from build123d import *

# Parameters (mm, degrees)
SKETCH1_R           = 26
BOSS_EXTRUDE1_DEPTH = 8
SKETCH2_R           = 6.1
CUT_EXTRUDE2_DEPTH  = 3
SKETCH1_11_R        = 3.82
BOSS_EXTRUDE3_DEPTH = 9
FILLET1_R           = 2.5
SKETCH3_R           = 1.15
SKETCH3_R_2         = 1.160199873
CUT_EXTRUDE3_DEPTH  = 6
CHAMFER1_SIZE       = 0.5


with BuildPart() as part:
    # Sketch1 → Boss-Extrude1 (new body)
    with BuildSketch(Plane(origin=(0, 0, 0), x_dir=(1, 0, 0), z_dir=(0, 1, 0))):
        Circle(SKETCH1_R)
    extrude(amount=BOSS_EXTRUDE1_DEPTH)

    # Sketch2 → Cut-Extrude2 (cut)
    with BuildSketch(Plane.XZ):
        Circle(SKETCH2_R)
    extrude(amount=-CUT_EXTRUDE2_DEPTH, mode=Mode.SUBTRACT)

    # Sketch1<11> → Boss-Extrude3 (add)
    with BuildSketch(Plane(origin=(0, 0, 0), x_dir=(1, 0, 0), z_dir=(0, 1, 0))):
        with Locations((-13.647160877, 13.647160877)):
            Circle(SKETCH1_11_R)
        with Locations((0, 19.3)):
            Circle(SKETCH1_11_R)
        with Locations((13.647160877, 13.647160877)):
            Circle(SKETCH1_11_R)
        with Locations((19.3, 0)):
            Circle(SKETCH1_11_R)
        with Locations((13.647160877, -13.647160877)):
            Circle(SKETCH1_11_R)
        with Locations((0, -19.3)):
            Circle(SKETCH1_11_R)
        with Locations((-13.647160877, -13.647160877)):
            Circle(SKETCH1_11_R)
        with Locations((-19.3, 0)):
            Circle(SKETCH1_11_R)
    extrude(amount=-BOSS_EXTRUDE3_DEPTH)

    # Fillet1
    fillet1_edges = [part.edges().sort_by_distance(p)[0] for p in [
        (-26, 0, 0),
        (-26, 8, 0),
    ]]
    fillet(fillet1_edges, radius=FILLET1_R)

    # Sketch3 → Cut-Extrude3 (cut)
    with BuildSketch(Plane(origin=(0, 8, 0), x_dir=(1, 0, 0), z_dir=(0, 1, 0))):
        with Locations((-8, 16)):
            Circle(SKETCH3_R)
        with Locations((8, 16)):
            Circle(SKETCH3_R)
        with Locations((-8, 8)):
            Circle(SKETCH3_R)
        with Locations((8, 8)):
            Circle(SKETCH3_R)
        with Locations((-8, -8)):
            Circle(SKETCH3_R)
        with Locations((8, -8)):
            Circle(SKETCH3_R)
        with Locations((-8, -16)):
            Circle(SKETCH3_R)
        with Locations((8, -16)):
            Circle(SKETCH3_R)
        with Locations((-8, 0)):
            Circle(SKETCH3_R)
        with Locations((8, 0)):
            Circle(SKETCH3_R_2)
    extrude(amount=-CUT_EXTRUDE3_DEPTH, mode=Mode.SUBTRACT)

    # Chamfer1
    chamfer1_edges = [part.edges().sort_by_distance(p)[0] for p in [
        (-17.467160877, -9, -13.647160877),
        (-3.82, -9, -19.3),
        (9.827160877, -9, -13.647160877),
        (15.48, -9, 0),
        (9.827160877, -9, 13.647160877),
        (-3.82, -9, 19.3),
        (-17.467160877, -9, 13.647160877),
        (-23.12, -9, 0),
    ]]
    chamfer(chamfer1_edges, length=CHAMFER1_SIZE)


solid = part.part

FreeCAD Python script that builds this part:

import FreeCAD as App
import Part
import Sketcher
from FreeCAD import Vector


def edges_at(feature, points):
    """Names of the edges that pass closest to the given points."""
    edges = feature.Shape.Edges
    near = lambda p: min(range(len(edges)), key=lambda i: edges[i].distToShape(Part.Vertex(*p))[0])
    return sorted({f"Edge{near(p) + 1}" for p in points})

doc = App.newDocument("Part")
body = doc.addObject("PartDesign::Body", "Body")

sketch1 = doc.addObject("Sketcher::SketchObject", "Sketch")
body.addObject(sketch1)
sketch1.AttachmentSupport = (doc.XZ_Plane, [""])
sketch1.MapMode = "FlatFace"
sketch1.addGeometry(Part.Circle(Vector(0, 0, 0), Vector(0, 0, 1), 26), False)
sketch1.addConstraint([
    Sketcher.Constraint("Coincident", 0, 3, -1, 1),
    Sketcher.Constraint("Diameter", 0, 52.0),
])
pad1 = doc.addObject("PartDesign::Pad", "Pad")
body.addObject(pad1)
pad1.Profile = sketch1
pad1.Length = 8
pad1.Reversed = True

sketch2 = doc.addObject("Sketcher::SketchObject", "Sketch001")
body.addObject(sketch2)
sketch2.AttachmentSupport = (doc.XZ_Plane, [""])
sketch2.MapMode = "FlatFace"
sketch2.addGeometry(Part.Circle(Vector(0, 0, 0), Vector(0, 0, 1), 6), False)
sketch2.addConstraint([
    Sketcher.Constraint("Coincident", 0, 3, -1, 1),
    Sketcher.Constraint("Diameter", 0, 12.2),
])
pocket1 = doc.addObject("PartDesign::Pocket", "Pocket")
body.addObject(pocket1)
pocket1.Profile = sketch2
pocket1.Length = 3

sketch3 = doc.addObject("Sketcher::SketchObject", "Sketch002")
body.addObject(sketch3)
sketch3.AttachmentSupport = (doc.XZ_Plane, [""])
sketch3.MapMode = "FlatFace"
sketch3.addGeometry([
    Part.Circle(Vector(-13.6, -13.6, 0), Vector(0, 0, 1), 3.8),
    Part.Circle(Vector(0, -19.3, 0), Vector(0, 0, 1), 3.8),
    Part.Circle(Vector(13.6, -13.6, 0), Vector(0, 0, 1), 3.8),
    Part.Circle(Vector(19.3, 0, 0), Vector(0, 0, 1), 3.8),
    Part.Circle(Vector(13.6, 13.6, 0), Vector(0, 0, 1), 3.8),
    Part.Circle(Vector(0, 19.3, 0), Vector(0, 0, 1), 3.8),
    Part.Circle(Vector(-13.6, 13.6, 0), Vector(0, 0, 1), 3.8),
    Part.Circle(Vector(-19.3, 0, 0), Vector(0, 0, 1), 3.8),
], False)
sketch3.addConstraint([
    Sketcher.Constraint("Equal", 0, 1),
    Sketcher.Constraint("Equal", 1, 2),
    Sketcher.Constraint("Equal", 2, 3),
    Sketcher.Constraint("Equal", 3, 4),
    Sketcher.Constraint("Equal", 4, 5),
    Sketcher.Constraint("Equal", 5, 6),
    Sketcher.Constraint("Equal", 6, 7),
    Sketcher.Constraint("Symmetric", 0, 3, 4, 3, -1, 1),
    Sketcher.Constraint("Symmetric", 1, 3, 5, 3, -1, 1),
    Sketcher.Constraint("Symmetric", 2, 3, 6, 3, -1, 1),
    Sketcher.Constraint("Symmetric", 3, 3, 7, 3, -1, 1),
    Sketcher.Constraint("Symmetric", 0, 3, 2, 3, -2),
    Sketcher.Constraint("PointOnObject", 1, 3, -2),
    Sketcher.Constraint("PointOnObject", 3, 3, -1),
    Sketcher.Constraint("Diameter", 0, 7.64),
    Sketcher.Constraint("DistanceY", 1, 3, -1, 1, 19.3),
    Sketcher.Constraint("DistanceX", -1, 1, 3, 3, 19.3),
    Sketcher.Constraint("DistanceX", 0, 3, -1, 1, 13.647161),
    Sketcher.Constraint("DistanceY", 0, 3, -1, 1, 13.647161),
])
pad2 = doc.addObject("PartDesign::Pad", "Pad001")
body.addObject(pad2)
pad2.Profile = sketch3
pad2.Length = 9
doc.recompute()

fillet = doc.addObject("PartDesign::Fillet", "Fillet")
body.addObject(fillet)
fillet.Base = (pad2, edges_at(pad2, [(-26, 0, 0), (-26, 8, 0)]))
fillet.Radius = 2.5

sketch4 = doc.addObject("Sketcher::SketchObject", "Sketch003")
body.addObject(sketch4)
sketch4.AttachmentSupport = (doc.XZ_Plane, [""])
sketch4.MapMode = "FlatFace"
sketch4.AttachmentOffset = App.Placement(Vector(0, 0, -8), App.Rotation())
sketch4.addGeometry([
    Part.Circle(Vector(-8, -16, 0), Vector(0, 0, 1), 1.1),
    Part.Circle(Vector(8, -16, 0), Vector(0, 0, 1), 1.1),
    Part.Circle(Vector(-8, -8, 0), Vector(0, 0, 1), 1.1),
    Part.Circle(Vector(8, -8, 0), Vector(0, 0, 1), 1.1),
    Part.Circle(Vector(-8, 8, 0), Vector(0, 0, 1), 1.1),
    Part.Circle(Vector(8, 8, 0), Vector(0, 0, 1), 1.1),
    Part.Circle(Vector(-8, 16, 0), Vector(0, 0, 1), 1.1),
    Part.Circle(Vector(8, 16, 0), Vector(0, 0, 1), 1.1),
    Part.Circle(Vector(-8, 0, 0), Vector(0, 0, 1), 1.1),
    Part.Circle(Vector(8, 0, 0), Vector(0, 0, 1), 1.2),
], False)
sketch4.addConstraint([
    Sketcher.Constraint("Equal", 0, 1),
    Sketcher.Constraint("Equal", 1, 2),
    Sketcher.Constraint("Equal", 2, 3),
    Sketcher.Constraint("Equal", 3, 4),
    Sketcher.Constraint("Equal", 4, 5),
    Sketcher.Constraint("Equal", 5, 6),
    Sketcher.Constraint("Equal", 6, 7),
    Sketcher.Constraint("Equal", 7, 8),
    Sketcher.Constraint("Symmetric", 3, 3, 4, 3, -1, 1),
    Sketcher.Constraint("Symmetric", 2, 3, 5, 3, -1, 1),
    Sketcher.Constraint("Symmetric", 1, 3, 6, 3, -1, 1),
    Sketcher.Constraint("Symmetric", 0, 3, 7, 3, -1, 1),
    Sketcher.Constraint("Symmetric", 8, 3, 9, 3, -1, 1),
    Sketcher.Constraint("Symmetric", 0, 3, 1, 3, -2),
    Sketcher.Constraint("Symmetric", 2, 3, 3, 3, -2),
    Sketcher.Constraint("PointOnObject", 8, 3, -1),
    Sketcher.Constraint("Vertical", 0, 3, 2, 3),
    Sketcher.Constraint("Vertical", 6, 3, 8, 3),
    Sketcher.Constraint("Diameter", 0, 2.3),
    Sketcher.Constraint("DistanceX", 0, 3, -1, 1, 8.0),
    Sketcher.Constraint("DistanceY", 0, 3, -1, 1, 16.0),
    Sketcher.Constraint("DistanceY", 2, 3, -1, 1, 8.0),
    Sketcher.Constraint("Diameter", 9, 2.3204),
])
pocket2 = doc.addObject("PartDesign::Pocket", "Pocket001")
body.addObject(pocket2)
pocket2.Profile = sketch4
pocket2.Length = 6
pocket2.Reversed = True
doc.recompute()

chamfer = doc.addObject("PartDesign::Chamfer", "Chamfer")
body.addObject(chamfer)
chamfer.Base = (pocket2, edges_at(pocket2, [
    (-17.467, -9, -13.647),
    (-3.82, -9, -19.3),
    (9.827, -9, -13.647),
    (15.48, -9, 0),
    (9.827, -9, 13.647),
    (-3.82, -9, 19.3),
    (-17.467, -9, 13.647),
    (-23.12, -9, 0),
]))
chamfer.Size = 0.5

doc.recompute()
